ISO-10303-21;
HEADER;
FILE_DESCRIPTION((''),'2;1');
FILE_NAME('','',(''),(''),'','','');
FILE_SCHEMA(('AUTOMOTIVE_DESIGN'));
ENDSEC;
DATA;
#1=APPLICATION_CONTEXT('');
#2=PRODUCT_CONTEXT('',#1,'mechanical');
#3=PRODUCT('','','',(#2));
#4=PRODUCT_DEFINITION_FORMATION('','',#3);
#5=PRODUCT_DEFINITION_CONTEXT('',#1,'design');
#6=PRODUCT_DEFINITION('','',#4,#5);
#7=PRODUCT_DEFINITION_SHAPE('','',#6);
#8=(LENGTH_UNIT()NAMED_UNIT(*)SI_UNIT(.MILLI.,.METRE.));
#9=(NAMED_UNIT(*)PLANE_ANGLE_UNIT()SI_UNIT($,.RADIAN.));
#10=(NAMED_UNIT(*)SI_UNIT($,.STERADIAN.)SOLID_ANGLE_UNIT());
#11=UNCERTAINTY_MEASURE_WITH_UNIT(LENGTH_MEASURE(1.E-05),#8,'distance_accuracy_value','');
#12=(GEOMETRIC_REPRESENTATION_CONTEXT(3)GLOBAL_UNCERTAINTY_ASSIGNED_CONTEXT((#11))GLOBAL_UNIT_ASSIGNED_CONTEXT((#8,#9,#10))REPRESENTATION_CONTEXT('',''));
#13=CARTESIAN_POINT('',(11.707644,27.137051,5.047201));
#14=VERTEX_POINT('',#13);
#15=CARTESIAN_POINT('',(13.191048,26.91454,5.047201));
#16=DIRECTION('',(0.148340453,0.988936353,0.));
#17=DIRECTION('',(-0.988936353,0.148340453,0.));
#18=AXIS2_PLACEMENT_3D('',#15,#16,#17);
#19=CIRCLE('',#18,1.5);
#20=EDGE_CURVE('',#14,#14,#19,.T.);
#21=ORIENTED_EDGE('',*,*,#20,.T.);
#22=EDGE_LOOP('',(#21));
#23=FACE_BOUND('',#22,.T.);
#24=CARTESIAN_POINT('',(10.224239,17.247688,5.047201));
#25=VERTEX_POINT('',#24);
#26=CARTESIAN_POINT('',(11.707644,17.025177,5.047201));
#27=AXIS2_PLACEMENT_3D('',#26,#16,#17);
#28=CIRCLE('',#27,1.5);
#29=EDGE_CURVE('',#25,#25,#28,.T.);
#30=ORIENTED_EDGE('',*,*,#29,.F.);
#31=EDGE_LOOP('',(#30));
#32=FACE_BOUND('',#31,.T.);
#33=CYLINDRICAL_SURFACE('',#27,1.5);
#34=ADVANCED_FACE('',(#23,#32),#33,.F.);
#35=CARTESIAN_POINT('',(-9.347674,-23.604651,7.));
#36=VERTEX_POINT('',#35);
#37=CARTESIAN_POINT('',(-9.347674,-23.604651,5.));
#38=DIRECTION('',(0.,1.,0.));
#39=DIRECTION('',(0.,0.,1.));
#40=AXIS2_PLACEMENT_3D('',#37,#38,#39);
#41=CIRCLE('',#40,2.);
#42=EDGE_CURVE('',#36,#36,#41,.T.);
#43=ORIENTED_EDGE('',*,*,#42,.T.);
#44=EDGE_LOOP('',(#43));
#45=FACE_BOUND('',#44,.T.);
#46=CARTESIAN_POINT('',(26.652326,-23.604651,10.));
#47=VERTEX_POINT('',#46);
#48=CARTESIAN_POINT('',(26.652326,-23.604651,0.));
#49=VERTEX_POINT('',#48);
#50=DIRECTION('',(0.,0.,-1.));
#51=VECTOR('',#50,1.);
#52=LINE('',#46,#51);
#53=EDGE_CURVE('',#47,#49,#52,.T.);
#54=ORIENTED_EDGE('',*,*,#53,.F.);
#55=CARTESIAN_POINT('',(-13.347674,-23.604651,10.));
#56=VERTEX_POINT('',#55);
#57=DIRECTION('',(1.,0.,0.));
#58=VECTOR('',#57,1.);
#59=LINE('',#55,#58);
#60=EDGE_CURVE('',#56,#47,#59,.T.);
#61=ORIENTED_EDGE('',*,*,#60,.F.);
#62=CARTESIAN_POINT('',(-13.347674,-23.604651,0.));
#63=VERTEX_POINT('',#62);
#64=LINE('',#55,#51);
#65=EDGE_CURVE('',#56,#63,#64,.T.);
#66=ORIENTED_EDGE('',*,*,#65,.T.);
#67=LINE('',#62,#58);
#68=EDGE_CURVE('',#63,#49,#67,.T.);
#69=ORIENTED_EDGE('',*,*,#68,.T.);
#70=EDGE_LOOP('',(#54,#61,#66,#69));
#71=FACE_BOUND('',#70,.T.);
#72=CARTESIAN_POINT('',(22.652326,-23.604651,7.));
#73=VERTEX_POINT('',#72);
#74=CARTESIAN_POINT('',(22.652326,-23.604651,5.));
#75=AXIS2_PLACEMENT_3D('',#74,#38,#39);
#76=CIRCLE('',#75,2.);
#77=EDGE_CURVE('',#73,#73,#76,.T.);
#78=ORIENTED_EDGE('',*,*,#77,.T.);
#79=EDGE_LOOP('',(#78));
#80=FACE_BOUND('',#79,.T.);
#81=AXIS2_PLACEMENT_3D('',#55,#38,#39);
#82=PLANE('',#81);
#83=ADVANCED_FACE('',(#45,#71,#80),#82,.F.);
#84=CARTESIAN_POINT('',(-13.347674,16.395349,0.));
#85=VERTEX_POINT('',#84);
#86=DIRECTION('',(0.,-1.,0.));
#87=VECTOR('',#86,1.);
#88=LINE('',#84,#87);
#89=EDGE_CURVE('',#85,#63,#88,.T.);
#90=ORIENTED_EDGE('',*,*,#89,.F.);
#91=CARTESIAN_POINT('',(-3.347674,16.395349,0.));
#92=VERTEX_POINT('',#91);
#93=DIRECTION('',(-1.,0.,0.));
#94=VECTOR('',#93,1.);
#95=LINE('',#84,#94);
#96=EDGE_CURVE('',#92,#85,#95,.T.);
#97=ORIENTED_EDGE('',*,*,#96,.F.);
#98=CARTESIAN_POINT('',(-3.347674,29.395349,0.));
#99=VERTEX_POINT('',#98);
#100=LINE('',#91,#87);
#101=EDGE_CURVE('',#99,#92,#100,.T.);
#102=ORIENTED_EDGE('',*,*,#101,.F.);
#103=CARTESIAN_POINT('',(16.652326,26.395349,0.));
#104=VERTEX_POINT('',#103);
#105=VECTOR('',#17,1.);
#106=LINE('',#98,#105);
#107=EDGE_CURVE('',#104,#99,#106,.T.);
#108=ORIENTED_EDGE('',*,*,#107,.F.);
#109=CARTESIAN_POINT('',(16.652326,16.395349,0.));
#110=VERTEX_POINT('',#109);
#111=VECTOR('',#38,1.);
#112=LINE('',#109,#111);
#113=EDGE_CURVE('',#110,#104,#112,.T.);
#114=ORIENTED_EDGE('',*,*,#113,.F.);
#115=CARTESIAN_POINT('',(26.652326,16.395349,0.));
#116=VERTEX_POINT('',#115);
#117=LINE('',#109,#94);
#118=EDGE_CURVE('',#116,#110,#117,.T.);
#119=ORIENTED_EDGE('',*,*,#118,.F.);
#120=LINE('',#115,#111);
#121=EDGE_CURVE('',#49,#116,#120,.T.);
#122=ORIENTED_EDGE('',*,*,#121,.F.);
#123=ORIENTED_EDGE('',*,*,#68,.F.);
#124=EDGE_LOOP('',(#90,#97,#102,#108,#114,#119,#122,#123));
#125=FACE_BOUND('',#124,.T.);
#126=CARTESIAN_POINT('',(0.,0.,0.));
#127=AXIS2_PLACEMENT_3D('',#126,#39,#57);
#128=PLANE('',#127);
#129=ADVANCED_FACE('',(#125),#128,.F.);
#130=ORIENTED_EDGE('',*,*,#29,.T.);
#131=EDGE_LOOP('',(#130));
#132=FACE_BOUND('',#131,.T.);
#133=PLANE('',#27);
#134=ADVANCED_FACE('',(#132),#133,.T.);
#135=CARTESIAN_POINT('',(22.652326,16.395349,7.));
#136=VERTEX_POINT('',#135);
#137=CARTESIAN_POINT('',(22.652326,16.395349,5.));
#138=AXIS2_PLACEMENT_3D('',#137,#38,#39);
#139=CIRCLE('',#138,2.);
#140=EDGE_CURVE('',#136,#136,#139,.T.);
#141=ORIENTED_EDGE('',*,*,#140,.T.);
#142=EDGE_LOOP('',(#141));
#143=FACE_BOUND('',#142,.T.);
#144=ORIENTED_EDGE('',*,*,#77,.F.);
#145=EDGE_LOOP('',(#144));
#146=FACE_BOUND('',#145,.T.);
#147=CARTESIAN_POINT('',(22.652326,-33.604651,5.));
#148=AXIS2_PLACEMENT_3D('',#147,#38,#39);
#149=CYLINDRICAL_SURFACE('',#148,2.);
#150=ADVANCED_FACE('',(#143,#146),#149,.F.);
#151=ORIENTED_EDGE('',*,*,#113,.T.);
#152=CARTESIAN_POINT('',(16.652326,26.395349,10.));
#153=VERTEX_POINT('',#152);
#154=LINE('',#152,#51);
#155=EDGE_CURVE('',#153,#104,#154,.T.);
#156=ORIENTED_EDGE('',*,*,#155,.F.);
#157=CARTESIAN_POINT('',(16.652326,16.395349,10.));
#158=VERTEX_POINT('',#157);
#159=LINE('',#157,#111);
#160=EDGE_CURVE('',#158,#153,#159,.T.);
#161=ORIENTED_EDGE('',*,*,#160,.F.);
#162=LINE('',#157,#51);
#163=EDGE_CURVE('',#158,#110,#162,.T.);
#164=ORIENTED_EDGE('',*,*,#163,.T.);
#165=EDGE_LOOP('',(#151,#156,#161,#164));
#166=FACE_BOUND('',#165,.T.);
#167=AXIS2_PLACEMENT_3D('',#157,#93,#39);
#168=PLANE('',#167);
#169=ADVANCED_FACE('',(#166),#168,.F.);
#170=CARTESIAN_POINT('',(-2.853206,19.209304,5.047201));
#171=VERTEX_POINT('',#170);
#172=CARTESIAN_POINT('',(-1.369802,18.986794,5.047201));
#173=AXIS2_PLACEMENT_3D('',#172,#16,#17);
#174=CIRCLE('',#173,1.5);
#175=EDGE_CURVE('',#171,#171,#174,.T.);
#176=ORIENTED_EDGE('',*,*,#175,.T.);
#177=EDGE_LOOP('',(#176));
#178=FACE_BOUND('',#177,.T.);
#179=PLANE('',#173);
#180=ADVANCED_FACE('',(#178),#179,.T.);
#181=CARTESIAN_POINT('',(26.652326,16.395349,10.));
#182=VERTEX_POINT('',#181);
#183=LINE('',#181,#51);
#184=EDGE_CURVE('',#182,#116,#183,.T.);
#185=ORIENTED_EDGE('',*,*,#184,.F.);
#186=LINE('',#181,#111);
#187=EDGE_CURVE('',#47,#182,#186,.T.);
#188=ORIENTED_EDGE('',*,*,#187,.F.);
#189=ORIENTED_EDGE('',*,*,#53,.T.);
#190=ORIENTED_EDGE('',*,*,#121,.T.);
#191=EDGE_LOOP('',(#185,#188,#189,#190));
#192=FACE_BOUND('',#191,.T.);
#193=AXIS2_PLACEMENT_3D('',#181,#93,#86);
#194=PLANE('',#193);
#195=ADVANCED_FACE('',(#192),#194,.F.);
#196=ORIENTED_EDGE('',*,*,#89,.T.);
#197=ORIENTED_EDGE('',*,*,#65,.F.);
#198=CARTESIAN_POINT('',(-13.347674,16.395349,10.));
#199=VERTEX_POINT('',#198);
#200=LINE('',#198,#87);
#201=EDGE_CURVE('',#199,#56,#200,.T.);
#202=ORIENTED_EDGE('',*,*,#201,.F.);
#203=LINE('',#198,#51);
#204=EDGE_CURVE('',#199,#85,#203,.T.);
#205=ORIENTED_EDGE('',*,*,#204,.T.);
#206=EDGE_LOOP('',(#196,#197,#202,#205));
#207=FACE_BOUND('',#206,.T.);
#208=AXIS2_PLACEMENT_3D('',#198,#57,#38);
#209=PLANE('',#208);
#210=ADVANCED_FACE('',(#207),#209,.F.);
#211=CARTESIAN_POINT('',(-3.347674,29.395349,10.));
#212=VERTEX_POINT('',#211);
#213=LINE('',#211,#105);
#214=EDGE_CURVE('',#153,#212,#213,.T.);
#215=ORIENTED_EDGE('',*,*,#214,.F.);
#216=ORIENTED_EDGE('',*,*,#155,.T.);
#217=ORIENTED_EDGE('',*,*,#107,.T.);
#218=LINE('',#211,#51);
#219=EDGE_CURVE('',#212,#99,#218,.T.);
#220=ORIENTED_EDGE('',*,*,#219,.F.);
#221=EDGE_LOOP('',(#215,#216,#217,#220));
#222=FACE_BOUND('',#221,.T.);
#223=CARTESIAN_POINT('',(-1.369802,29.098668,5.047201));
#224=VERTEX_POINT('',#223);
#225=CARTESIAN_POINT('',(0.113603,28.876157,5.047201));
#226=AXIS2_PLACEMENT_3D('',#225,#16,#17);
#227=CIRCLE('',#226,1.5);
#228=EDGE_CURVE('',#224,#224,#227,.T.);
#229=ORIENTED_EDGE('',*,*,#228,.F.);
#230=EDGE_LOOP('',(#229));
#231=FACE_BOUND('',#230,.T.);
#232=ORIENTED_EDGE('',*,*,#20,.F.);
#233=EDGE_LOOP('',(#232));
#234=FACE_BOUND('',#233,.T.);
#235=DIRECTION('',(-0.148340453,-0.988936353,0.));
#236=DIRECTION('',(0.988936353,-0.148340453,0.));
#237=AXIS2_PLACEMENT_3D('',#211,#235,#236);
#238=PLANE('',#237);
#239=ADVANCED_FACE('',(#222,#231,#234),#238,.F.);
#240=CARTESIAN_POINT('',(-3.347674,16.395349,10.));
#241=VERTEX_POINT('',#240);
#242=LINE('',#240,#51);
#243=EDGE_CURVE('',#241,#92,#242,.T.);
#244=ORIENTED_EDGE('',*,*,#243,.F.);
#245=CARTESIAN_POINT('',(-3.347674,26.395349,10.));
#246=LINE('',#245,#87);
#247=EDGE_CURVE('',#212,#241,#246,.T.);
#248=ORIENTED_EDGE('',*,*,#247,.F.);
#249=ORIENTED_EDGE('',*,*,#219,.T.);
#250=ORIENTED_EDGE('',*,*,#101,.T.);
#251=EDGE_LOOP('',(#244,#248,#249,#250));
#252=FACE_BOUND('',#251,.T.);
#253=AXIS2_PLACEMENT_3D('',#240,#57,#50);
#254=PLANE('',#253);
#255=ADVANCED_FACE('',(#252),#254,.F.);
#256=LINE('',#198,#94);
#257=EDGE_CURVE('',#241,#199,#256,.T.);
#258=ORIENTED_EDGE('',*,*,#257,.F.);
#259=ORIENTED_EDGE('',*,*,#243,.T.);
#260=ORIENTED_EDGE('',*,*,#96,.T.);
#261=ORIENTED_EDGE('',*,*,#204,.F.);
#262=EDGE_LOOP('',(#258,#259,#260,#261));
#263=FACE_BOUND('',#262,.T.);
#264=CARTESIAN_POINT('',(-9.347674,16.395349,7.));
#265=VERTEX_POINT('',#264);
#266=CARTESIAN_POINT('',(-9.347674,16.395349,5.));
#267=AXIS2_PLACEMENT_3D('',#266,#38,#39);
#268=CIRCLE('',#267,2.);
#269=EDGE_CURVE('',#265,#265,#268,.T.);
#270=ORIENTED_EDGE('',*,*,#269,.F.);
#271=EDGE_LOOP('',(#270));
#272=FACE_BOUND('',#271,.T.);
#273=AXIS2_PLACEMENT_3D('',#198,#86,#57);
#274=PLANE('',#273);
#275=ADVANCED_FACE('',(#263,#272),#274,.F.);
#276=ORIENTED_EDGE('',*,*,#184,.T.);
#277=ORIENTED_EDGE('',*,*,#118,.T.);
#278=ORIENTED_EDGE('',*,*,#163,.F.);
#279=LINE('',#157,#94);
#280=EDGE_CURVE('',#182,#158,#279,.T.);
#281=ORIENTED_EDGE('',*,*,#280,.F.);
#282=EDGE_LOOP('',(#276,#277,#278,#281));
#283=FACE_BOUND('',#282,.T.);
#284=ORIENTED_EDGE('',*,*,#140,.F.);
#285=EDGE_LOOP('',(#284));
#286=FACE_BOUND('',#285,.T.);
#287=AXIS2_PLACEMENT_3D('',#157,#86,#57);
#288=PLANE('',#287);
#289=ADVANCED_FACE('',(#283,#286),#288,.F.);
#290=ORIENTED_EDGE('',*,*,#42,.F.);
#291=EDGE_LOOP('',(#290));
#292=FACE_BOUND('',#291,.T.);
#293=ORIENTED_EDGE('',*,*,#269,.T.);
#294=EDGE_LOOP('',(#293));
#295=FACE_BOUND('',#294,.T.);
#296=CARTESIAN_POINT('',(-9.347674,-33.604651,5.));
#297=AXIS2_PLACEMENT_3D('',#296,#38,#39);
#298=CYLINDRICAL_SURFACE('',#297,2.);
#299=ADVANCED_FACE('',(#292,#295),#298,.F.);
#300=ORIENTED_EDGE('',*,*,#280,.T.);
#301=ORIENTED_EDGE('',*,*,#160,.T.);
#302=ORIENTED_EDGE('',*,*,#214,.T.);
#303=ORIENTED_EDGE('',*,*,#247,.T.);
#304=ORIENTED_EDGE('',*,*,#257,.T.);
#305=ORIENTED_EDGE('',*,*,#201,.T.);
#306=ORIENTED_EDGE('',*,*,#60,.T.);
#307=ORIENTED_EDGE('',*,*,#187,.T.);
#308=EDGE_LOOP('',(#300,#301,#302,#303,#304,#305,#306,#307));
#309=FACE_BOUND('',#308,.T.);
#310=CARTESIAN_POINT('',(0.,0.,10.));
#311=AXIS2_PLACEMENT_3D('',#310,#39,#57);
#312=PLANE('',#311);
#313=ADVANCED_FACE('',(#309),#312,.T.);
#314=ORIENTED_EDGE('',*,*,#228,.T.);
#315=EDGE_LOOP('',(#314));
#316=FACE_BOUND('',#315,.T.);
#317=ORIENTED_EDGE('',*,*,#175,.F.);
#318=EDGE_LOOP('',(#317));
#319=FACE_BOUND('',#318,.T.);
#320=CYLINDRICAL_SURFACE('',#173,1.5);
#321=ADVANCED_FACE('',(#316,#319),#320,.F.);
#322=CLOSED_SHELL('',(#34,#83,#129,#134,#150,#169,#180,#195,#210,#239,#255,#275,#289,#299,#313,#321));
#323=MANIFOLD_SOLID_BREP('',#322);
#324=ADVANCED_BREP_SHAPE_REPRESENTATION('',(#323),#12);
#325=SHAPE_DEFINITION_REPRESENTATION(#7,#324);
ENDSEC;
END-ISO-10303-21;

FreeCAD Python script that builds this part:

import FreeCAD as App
import Part
import Sketcher

doc = App.newDocument("Part")
body = doc.addObject("PartDesign::Body", "Body")

# Sketch on XY plane
sketch1 = doc.addObject("Sketcher::SketchObject", "Sketch")
body.addObject(sketch1)
sketch1.AttachmentSupport = (doc.XY_Plane, [""])
sketch1.MapMode = "FlatFace"
sketch1.addGeometry(Part.LineSegment(App.Vector(-3.347674, 16.395349, 0), App.Vector(-13.347674, 16.395349, 0)), False)
sketch1.addGeometry(Part.LineSegment(App.Vector(-13.347674, 16.395349, 0), App.Vector(-13.347674, -23.604651, 0)), False)
sketch1.addGeometry(Part.LineSegment(App.Vector(-13.347674, -23.604651, 0), App.Vector(26.652326, -23.604651, 0)), False)
sketch1.addGeometry(Part.LineSegment(App.Vector(26.652326, -23.604651, 0), App.Vector(26.652326, 16.395349, 0)), False)
sketch1.addGeometry(Part.LineSegment(App.Vector(26.652326, 16.395349, 0), App.Vector(16.652326, 16.395349, 0)), False)
sketch1.addGeometry(Part.LineSegment(App.Vector(16.652326, 16.395349, 0), App.Vector(16.652326, 26.395349, 0)), False)
sketch1.addGeometry(Part.LineSegment(App.Vector(16.652326, 26.395349, 0), App.Vector(-3.347674, 29.395349, 0)), False)
sketch1.addGeometry(Part.LineSegment(App.Vector(-3.347674, 29.395349, 0), App.Vector(-3.347674, 16.395349, 0)), False)
sketch1.addConstraint(Sketcher.Constraint("Coincident", 0, 2, 1, 1))
sketch1.addConstraint(Sketcher.Constraint("Coincident", 1, 2, 2, 1))
sketch1.addConstraint(Sketcher.Constraint("Coincident", 2, 2, 3, 1))
sketch1.addConstraint(Sketcher.Constraint("Coincident", 3, 2, 4, 1))
sketch1.addConstraint(Sketcher.Constraint("Coincident", 4, 2, 5, 1))
sketch1.addConstraint(Sketcher.Constraint("Coincident", 5, 2, 6, 1))
sketch1.addConstraint(Sketcher.Constraint("Coincident", 6, 2, 7, 1))
sketch1.addConstraint(Sketcher.Constraint("Coincident", 7, 2, 0, 1))
sketch1.addConstraint(Sketcher.Constraint("Horizontal", 0))
sketch1.addConstraint(Sketcher.Constraint("Vertical", 1))
sketch1.addConstraint(Sketcher.Constraint("Horizontal", 2))
sketch1.addConstraint(Sketcher.Constraint("Vertical", 3))
sketch1.addConstraint(Sketcher.Constraint("Horizontal", 4))
sketch1.addConstraint(Sketcher.Constraint("Vertical", 5))
sketch1.addConstraint(Sketcher.Constraint("Vertical", 7))
sketch1.addConstraint(Sketcher.Constraint("Horizontal", 0, 2, 3, 2))
sketch1.addConstraint(Sketcher.Constraint("Equal", 0, 4))
sketch1.addConstraint(Sketcher.Constraint("Equal", 2, 1))
sketch1.addConstraint(Sketcher.Constraint("Equal", 4, 5))
sketch1.addConstraint(Sketcher.Constraint("DistanceX", 0, 2, 0, 1, 10.0))
sketch1.addConstraint(Sketcher.Constraint("DistanceX", 2, 1, 2, 2, 40.0))
sketch1.addConstraint(Sketcher.Constraint("DistanceY", 7, 2, 7, 1, 13.0))
sketch1.addConstraint(Sketcher.Constraint("DistanceY", -1, 1, 0, 2, 16.395349))
sketch1.addConstraint(Sketcher.Constraint("DistanceX", 0, 2, -1, 1, 13.347674))
pad1 = doc.addObject("PartDesign::Pad", "Pad")
body.addObject(pad1)
pad1.Profile = sketch1
pad1.Length = 10

# Sketch on an angled plane
sketch2 = doc.addObject("Sketcher::SketchObject", "Sketch001")
body.addObject(sketch2)
sketch2.Placement = App.Placement(App.Vector(4.238611, 28.257406, 0), App.Rotation(App.Vector(0.988936353, -0.148340453, 0), App.Vector(0, 0, -1), App.Vector(0.148340453, 0.988936353, 0), "ZXY"))
sketch2.addGeometry(Part.Circle(App.Vector(-4.171156, -5.047201, 0), App.Vector(0, 0, 1), 1.5), False)
sketch2.addGeometry(Part.Circle(App.Vector(9.052592, -5.047201, 0), App.Vector(0, 0, 1), 1.5), False)
sketch2.addConstraint(Sketcher.Constraint("Equal", 0, 1))
sketch2.addConstraint(Sketcher.Constraint("Horizontal", 0, 3, 1, 3))
sketch2.addConstraint(Sketcher.Constraint("Diameter", 0, 3.0))
sketch2.addConstraint(Sketcher.Constraint("DistanceY", 0, 3, -1, 1, 5.047201))
sketch2.addConstraint(Sketcher.Constraint("DistanceX", 0, 3, 1, 3, 13.223748))
sketch2.addConstraint(Sketcher.Constraint("DistanceX", 0, 3, -1, 1, 4.171156))
pocket1 = doc.addObject("PartDesign::Pocket", "Pocket")
body.addObject(pocket1)
pocket1.Profile = sketch2
pocket1.Length = 10

# Sketch on XZ plane
sketch3 = doc.addObject("Sketcher::SketchObject", "Sketch002")
body.addObject(sketch3)
sketch3.AttachmentSupport = (doc.XZ_Plane, [""])
sketch3.MapMode = "FlatFace"
sketch3.AttachmentOffset = App.Placement(App.Vector(0, 0, -16.395349), App.Rotation())
sketch3.addGeometry(Part.Circle(App.Vector(22.652326, 5, 0), App.Vector(0, 0, 1), 2), False)
sketch3.addGeometry(Part.Circle(App.Vector(-9.347674, 5, 0), App.Vector(0, 0, 1), 2), False)
sketch3.addConstraint(Sketcher.Constraint("Equal", 0, 1))
sketch3.addConstraint(Sketcher.Constraint("Horizontal", 0, 3, 1, 3))
sketch3.addConstraint(Sketcher.Constraint("Diameter", 0, 4.0))
sketch3.addConstraint(Sketcher.Constraint("DistanceY", -1, 1, 0, 3, 5.0))
sketch3.addConstraint(Sketcher.Constraint("DistanceX", 1, 3, 0, 3, 32.0))
sketch3.addConstraint(Sketcher.Constraint("DistanceX", -1, 1, 0, 3, 22.652326))
pocket2 = doc.addObject("PartDesign::Pocket", "Pocket001")
body.addObject(pocket2)
pocket2.Profile = sketch3
pocket2.Length = 50
pocket2.Reversed = True

doc.recompute()
